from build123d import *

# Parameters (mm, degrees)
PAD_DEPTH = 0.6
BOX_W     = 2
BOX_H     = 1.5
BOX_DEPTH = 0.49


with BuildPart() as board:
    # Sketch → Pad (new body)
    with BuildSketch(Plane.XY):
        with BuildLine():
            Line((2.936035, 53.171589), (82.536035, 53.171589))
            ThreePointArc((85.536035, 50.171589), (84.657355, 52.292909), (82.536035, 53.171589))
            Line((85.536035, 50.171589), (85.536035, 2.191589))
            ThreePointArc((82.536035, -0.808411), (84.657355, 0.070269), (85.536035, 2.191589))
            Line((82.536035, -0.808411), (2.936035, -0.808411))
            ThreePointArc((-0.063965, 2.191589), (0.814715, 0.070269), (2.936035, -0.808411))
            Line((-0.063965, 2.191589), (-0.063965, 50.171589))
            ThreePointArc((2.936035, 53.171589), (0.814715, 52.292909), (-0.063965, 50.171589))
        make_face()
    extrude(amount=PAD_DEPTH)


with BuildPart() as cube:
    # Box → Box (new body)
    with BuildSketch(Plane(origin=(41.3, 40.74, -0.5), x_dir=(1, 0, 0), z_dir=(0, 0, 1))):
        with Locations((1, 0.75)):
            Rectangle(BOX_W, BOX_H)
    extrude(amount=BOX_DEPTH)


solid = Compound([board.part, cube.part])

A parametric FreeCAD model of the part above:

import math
import FreeCAD as App
import Part
import Sketcher
Q = App.Units.Quantity


def add_polygon(sketch, points):
    """Adds a closed chain of lines whose ends are joined by coincident constraints."""
    first, n = sketch.GeometryCount, len(points)
    for a, b in zip(points, points[1:] + points[:1]):
        sketch.addGeometry(Part.LineSegment(App.Vector(*a, 0), App.Vector(*b, 0)), False)
    for i in range(n):
        sketch.addConstraint(Sketcher.Constraint("Coincident", first + i, 2, first + (i + 1) % n, 1))

doc = App.newDocument("Part")
body = doc.addObject("PartDesign::Body", "Body")

# Sketch on XY plane
sketch1 = body.newObject("Sketcher::SketchObject", "Sketch")
sketch1.AttachmentSupport = (doc.getObject("XY_Plane"), [""])
sketch1.MapMode = "FlatFace"
sketch1.addGeometry(Part.LineSegment(App.Vector(82.5, 53.2, 0), App.Vector(2.9, 53.2, 0)), False)
sketch1.addGeometry(Part.ArcOfCircle(Part.Circle(App.Vector(2.9, 50.2, 0), App.Vector(0, 0, 1), 3), math.radians(90), math.radians(180)), False)
sketch1.addGeometry(Part.LineSegment(App.Vector(-0.1, 50.2, 0), App.Vector(-0.1, 2.2, 0)), False)
sketch1.addGeometry(Part.ArcOfCircle(Part.Circle(App.Vector(2.9, 2.2, 0), App.Vector(0, 0, 1), 3), math.radians(-180), math.radians(-90)), False)
sketch1.addGeometry(Part.LineSegment(App.Vector(2.9, -0.8, 0), App.Vector(82.5, -0.8, 0)), False)
sketch1.addGeometry(Part.ArcOfCircle(Part.Circle(App.Vector(82.5, 2.2, 0), App.Vector(0, 0, 1), 3), math.radians(-90), math.radians(0)), False)
sketch1.addGeometry(Part.LineSegment(App.Vector(85.5, 2.2, 0), App.Vector(85.5, 50.2, 0)), False)
sketch1.addGeometry(Part.ArcOfCircle(Part.Circle(App.Vector(82.5, 50.2, 0), App.Vector(0, 0, 1), 3), math.radians(0), math.radians(90)), False)
sketch1.addConstraint(Sketcher.Constraint("Tangent", 0, 2, 1, 1))
sketch1.addConstraint(Sketcher.Constraint("Tangent", 1, 2, 2, 1))
sketch1.addConstraint(Sketcher.Constraint("Tangent", 2, 2, 3, 1))
sketch1.addConstraint(Sketcher.Constraint("Tangent", 3, 2, 4, 1))
sketch1.addConstraint(Sketcher.Constraint("Tangent", 4, 2, 5, 1))
sketch1.addConstraint(Sketcher.Constraint("Tangent", 5, 2, 6, 1))
sketch1.addConstraint(Sketcher.Constraint("Tangent", 6, 2, 7, 1))
sketch1.addConstraint(Sketcher.Constraint("Tangent", 7, 2, 0, 1))
sketch1.addConstraint(Sketcher.Constraint("Horizontal", 0))
sketch1.addConstraint(Sketcher.Constraint("Vertical", 2))
sketch1.addConstraint(Sketcher.Constraint("Horizontal", 4))
sketch1.addConstraint(Sketcher.Constraint("Vertical", 6))
sketch1.addConstraint(Sketcher.Constraint("Equal", 1, 3))
sketch1.addConstraint(Sketcher.Constraint("Equal", 3, 5))
sketch1.addConstraint(Sketcher.Constraint("Equal", 5, 7))
sketch1.addConstraint(Sketcher.Constraint("Radius", 1, Q("3.000001 mm")))
sketch1.addConstraint(Sketcher.Constraint("DistanceX", 0, 2, 0, 1, Q("79.6 mm")))
sketch1.addConstraint(Sketcher.Constraint("DistanceY", 2, 2, 2, 1, Q("47.98 mm")))
sketch1.addConstraint(Sketcher.Constraint("DistanceY", -1, 1, 3, 3, Q("2.19159 mm")))
sketch1.addConstraint(Sketcher.Constraint("DistanceX", -1, 1, 1, 3, Q("2.936036 mm")))
pad1 = body.newObject("PartDesign::Pad", "Pad")
pad1.Profile = sketch1
pad1.Length = 0.6
body2 = doc.addObject("PartDesign::Body", "Body001")

# Sketch on XY plane
sketch2 = body2.newObject("Sketcher::SketchObject", "Sketch001")
sketch2.AttachmentSupport = (doc.getObject("XY_Plane001"), [""])
sketch2.MapMode = "FlatFace"
sketch2.AttachmentOffset = App.Placement(App.Vector(0, 0, -0.5), App.Rotation())
add_polygon(sketch2, [(41.3, 42.2), (41.3, 40.7), (43.3, 40.7), (43.3, 42.2)])  # lines 0-3
sketch2.addConstraint(Sketcher.Constraint("Vertical", 0))
sketch2.addConstraint(Sketcher.Constraint("Horizontal", 1))
sketch2.addConstraint(Sketcher.Constraint("Vertical", 2))
sketch2.addConstraint(Sketcher.Constraint("Horizontal", 3))
sketch2.addConstraint(Sketcher.Constraint("DistanceX", 1, 1, 1, 2, Q("2 mm")))
sketch2.addConstraint(Sketcher.Constraint("DistanceY", 0, 2, 0, 1, Q("1.5 mm")))
sketch2.addConstraint(Sketcher.Constraint("DistanceX", -1, 1, 0, 2, Q("41.3 mm")))
sketch2.addConstraint(Sketcher.Constraint("DistanceY", -1, 1, 0, 2, Q("40.74 mm")))
pad2 = body2.newObject("PartDesign::Pad", "Pad001")
pad2.Profile = sketch2
pad2.Length = 0.49

doc.recompute()
